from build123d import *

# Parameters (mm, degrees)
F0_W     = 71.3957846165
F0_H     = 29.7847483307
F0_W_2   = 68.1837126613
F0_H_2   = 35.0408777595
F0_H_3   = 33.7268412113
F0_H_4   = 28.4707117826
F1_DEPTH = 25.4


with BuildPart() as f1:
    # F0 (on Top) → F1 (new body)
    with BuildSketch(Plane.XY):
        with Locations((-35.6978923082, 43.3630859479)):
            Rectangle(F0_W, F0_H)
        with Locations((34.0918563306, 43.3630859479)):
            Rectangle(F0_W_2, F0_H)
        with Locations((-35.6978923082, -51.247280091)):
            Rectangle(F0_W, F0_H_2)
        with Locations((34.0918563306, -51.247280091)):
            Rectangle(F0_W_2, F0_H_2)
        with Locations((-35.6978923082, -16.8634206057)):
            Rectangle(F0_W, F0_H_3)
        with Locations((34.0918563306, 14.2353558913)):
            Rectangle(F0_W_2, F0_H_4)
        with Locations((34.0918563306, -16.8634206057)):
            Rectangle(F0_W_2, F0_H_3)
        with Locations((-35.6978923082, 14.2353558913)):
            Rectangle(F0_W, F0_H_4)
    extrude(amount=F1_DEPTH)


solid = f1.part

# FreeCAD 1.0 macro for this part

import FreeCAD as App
import Part
import Sketcher
Q = App.Units.Quantity

doc = App.newDocument("Part")
body = doc.addObject("PartDesign::Body", "Body")

# Sketch on XY plane
sketch1 = body.newObject("Sketcher::SketchObject", "Sketch")
sketch1.AttachmentSupport = (doc.getObject("XY_Plane"), [""])
sketch1.MapMode = "FlatFace"
sketch1.addGeometry(Part.LineSegment(App.Vector(-71.395785, 58.25546, 0), App.Vector(-71.395785, -68.767719, 0)), False)
sketch1.addGeometry(Part.LineSegment(App.Vector(-71.395785, -68.767719, 0), App.Vector(68.183713, -68.767719, 0)), False)
sketch1.addGeometry(Part.LineSegment(App.Vector(68.183713, -68.767719, 0), App.Vector(68.183713, 58.25546, 0)), False)
sketch1.addGeometry(Part.LineSegment(App.Vector(68.183713, 58.25546, 0), App.Vector(-71.395785, 58.25546, 0)), False)
sketch1.addConstraint(Sketcher.Constraint("Coincident", 0, 2, 1, 1))
sketch1.addConstraint(Sketcher.Constraint("Coincident", 1, 2, 2, 1))
sketch1.addConstraint(Sketcher.Constraint("Coincident", 2, 2, 3, 1))
sketch1.addConstraint(Sketcher.Constraint("Coincident", 3, 2, 0, 1))
sketch1.addConstraint(Sketcher.Constraint("Vertical", 0))
sketch1.addConstraint(Sketcher.Constraint("Horizontal", 1))
sketch1.addConstraint(Sketcher.Constraint("Vertical", 2))
sketch1.addConstraint(Sketcher.Constraint("Horizontal", 3))
sketch1.addConstraint(Sketcher.Constraint("DistanceY", 0, 2, 0, 1, Q("127.023179 mm")))
sketch1.addConstraint(Sketcher.Constraint("DistanceX", 1, 1, 1, 2, Q("139.579497 mm")))
sketch1.addConstraint(Sketcher.Constraint("DistanceY", 0, 2, -1, 1, Q("68.767719 mm")))
sketch1.addConstraint(Sketcher.Constraint("DistanceX", 0, 2, -1, 1, Q("71.395785 mm")))
pad1 = body.newObject("PartDesign::Pad", "Pad")
pad1.Profile = sketch1
pad1.Length = Q("1 in")

doc.recompute()
